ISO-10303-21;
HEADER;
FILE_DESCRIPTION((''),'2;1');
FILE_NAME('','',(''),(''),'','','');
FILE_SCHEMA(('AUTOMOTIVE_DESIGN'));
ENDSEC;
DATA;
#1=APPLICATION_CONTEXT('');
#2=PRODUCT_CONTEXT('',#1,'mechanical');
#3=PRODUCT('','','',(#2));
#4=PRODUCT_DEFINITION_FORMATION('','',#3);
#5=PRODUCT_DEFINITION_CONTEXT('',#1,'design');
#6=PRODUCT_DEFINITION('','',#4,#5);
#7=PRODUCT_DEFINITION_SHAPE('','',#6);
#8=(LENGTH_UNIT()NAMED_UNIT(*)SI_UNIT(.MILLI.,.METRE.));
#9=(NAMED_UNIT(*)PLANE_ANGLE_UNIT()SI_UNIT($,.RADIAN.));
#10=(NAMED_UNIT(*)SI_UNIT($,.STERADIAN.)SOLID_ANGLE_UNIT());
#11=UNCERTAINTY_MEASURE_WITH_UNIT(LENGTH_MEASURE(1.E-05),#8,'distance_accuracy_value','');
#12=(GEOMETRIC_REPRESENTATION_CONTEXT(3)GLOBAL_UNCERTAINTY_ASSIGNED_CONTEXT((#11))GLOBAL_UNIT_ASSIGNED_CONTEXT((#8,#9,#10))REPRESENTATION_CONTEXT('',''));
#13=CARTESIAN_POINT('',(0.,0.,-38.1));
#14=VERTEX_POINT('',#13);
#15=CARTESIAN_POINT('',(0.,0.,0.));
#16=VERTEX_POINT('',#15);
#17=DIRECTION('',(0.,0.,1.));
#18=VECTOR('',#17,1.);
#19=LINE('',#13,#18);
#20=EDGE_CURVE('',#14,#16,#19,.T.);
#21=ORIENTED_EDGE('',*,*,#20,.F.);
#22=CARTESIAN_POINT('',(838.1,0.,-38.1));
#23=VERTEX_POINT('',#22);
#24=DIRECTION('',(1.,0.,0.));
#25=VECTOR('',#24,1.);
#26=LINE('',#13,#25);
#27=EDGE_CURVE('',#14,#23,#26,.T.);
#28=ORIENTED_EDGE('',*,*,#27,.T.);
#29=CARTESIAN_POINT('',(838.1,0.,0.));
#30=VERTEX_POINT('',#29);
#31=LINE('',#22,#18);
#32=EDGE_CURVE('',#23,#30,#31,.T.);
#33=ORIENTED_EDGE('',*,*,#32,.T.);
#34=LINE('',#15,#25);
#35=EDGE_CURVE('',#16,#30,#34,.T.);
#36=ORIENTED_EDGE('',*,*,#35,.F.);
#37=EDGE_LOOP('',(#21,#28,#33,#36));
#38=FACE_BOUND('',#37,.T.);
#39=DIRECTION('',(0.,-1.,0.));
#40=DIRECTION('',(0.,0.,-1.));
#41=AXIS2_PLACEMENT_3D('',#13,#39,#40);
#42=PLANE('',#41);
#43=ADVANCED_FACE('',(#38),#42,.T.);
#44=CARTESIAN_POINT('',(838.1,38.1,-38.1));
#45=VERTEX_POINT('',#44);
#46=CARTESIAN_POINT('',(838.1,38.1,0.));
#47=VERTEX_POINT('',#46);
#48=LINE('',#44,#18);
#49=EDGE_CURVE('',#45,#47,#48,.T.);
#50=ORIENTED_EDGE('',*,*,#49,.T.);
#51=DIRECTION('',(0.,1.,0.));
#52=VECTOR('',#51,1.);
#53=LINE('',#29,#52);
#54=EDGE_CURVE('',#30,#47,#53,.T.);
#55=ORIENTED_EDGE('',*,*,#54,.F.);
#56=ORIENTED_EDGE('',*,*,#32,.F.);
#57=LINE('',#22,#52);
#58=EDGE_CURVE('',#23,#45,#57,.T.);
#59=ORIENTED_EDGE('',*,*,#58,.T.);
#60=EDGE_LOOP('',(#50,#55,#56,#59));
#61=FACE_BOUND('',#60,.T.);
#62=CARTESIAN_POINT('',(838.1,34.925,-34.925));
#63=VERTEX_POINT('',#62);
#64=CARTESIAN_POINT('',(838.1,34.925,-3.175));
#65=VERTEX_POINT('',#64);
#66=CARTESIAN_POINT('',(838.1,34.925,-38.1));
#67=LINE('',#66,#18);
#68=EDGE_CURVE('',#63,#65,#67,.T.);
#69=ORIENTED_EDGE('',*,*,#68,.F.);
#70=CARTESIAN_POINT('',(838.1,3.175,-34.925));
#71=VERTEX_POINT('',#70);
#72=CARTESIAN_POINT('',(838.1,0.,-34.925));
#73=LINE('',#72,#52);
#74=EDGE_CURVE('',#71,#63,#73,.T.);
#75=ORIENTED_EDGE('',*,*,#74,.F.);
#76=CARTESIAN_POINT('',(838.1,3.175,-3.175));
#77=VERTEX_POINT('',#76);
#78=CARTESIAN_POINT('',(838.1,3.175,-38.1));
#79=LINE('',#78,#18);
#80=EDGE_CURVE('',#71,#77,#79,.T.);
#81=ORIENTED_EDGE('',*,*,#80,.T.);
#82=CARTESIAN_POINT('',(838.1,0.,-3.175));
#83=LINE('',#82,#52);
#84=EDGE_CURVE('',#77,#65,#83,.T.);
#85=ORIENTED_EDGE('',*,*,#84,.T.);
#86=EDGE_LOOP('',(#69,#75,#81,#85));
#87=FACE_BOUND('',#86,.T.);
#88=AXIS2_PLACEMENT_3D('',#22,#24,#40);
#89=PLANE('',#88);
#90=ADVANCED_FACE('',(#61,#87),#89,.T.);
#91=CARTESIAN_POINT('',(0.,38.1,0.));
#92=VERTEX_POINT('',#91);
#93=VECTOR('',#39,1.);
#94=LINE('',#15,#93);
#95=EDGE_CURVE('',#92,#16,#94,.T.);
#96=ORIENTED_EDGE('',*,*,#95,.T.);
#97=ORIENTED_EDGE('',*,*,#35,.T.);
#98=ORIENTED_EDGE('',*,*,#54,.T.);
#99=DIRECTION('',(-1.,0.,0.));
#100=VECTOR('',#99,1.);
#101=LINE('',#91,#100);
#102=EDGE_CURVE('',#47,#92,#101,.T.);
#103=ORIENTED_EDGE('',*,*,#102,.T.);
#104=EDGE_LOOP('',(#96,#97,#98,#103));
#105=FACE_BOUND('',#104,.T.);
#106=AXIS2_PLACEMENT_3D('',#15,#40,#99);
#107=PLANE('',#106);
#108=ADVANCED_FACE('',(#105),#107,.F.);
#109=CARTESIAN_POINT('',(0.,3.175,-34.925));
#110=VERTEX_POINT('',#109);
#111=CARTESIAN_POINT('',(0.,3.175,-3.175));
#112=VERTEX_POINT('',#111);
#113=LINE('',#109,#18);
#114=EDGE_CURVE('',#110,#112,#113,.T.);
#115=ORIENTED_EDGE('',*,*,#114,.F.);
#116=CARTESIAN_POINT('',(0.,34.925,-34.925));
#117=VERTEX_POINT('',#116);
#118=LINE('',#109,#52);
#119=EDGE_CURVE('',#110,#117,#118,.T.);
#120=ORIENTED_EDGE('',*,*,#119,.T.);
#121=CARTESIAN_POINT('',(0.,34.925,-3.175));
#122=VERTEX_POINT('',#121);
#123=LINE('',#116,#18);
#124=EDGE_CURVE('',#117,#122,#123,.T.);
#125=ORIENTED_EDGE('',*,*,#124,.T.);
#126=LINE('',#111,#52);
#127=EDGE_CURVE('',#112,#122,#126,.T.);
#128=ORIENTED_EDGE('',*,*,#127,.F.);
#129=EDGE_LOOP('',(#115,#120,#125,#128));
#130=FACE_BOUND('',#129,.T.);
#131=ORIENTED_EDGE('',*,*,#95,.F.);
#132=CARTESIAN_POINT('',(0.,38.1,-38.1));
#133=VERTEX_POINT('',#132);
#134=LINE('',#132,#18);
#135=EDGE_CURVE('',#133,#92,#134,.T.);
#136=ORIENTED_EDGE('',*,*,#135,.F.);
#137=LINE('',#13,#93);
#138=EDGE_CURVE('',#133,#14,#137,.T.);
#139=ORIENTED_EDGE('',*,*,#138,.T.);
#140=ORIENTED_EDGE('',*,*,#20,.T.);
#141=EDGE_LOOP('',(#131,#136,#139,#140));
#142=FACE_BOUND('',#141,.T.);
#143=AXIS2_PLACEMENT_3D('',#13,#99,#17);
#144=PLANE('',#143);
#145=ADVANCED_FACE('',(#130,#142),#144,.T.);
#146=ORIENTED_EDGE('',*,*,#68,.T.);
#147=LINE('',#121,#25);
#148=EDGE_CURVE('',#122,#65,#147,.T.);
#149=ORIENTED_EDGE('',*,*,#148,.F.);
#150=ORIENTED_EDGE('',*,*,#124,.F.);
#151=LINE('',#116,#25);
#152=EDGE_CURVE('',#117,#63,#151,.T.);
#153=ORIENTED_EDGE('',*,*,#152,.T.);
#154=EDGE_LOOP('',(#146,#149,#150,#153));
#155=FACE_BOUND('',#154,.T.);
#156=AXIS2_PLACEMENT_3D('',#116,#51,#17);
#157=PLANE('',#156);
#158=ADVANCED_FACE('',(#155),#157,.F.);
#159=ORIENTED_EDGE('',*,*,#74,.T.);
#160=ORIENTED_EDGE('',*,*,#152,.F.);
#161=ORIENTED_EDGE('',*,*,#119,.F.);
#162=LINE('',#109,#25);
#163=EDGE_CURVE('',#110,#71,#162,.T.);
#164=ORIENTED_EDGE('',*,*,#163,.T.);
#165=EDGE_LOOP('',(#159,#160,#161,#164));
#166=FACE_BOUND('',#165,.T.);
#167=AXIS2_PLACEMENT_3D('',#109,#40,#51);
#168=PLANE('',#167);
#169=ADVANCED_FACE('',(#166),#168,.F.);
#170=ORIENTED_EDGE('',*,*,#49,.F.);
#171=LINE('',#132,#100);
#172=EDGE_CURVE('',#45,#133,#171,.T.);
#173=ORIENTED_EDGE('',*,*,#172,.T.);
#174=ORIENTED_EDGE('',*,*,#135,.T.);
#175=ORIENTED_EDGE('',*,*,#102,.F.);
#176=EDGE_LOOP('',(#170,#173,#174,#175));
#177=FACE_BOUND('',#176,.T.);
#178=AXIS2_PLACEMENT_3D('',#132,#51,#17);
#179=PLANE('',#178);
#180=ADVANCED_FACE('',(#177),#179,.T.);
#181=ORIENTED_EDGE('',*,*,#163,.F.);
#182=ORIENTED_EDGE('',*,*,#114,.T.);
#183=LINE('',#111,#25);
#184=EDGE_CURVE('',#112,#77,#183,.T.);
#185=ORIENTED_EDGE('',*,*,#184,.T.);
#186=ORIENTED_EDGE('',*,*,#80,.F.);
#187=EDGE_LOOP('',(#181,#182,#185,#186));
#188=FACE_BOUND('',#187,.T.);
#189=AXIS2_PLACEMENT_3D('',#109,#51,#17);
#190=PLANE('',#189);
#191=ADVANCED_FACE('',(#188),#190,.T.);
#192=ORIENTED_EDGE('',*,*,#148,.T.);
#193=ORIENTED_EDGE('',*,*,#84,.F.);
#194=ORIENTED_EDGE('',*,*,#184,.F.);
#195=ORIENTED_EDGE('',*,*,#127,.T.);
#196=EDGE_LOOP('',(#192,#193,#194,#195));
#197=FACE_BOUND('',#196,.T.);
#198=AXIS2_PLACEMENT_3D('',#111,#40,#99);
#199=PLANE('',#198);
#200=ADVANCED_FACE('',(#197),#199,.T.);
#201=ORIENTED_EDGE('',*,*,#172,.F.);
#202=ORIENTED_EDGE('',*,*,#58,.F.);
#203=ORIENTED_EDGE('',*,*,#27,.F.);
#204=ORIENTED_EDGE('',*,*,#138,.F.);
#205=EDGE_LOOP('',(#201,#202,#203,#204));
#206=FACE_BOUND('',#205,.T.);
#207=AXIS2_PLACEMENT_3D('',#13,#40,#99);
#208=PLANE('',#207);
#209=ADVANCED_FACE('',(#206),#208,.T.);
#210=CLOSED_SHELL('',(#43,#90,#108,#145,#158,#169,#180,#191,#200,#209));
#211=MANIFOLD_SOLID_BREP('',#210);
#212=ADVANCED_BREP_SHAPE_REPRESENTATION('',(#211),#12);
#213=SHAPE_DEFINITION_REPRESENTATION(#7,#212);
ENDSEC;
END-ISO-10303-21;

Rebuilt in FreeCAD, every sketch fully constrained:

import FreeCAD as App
import Part
import Sketcher
from FreeCAD import Vector

doc = App.newDocument("Part")
params = doc.addObject("Spreadsheet::Sheet", "Params")
for row, (alias, value) in enumerate([
    ("sketch1_width", "838.1 mm"),
    ("sketch1_height", "38.1 mm"),
    ("pad1_length", "38.1 mm"),
    ("sketch2_width", "31.75 mm"),
], start=1):
    params.set(f"A{row}", alias)
    params.set(f"B{row}", "=" + value)
    params.setAlias(f"B{row}", alias)

body = doc.addObject("PartDesign::Body", "Body")

sketch1 = body.newObject("Sketcher::SketchObject", "Sketch")
sketch1.AttachmentSupport = (doc.getObject("XY_Plane"), [""])
sketch1.MapMode = "FlatFace"
sketch1.addGeometry([
    Part.LineSegment(Vector(0, 38, 0), Vector(0, 0, 0)),
    Part.LineSegment(Vector(0, 0, 0), Vector(838, 0, 0)),
    Part.LineSegment(Vector(838, 0, 0), Vector(838, 38, 0)),
    Part.LineSegment(Vector(838, 38, 0), Vector(0, 38, 0)),
], False)
sketch1.addConstraint([
    Sketcher.Constraint("Coincident", 0, 2, 1, 1),
    Sketcher.Constraint("Coincident", 1, 2, 2, 1),
    Sketcher.Constraint("Coincident", 2, 2, 3, 1),
    Sketcher.Constraint("Coincident", 3, 2, 0, 1),
    Sketcher.Constraint("Vertical", 0),
    Sketcher.Constraint("Horizontal", 1),
    Sketcher.Constraint("Vertical", 2),
    Sketcher.Constraint("Horizontal", 3),
    Sketcher.Constraint("Coincident", 0, 2, -1, 1),
    Sketcher.Constraint("DistanceX", 1, 1, 1, 2, 838.1),
    Sketcher.Constraint("DistanceY", 0, 2, 0, 1, 38.1),
])
sketch1.setExpression("Constraints[9]", "Params.sketch1_width")
sketch1.setExpression("Constraints[10]", "Params.sketch1_height")
pad1 = body.newObject("PartDesign::Pad", "Pad")
pad1.Profile = sketch1
pad1.setExpression("Length", "Params.pad1_length")
pad1.Reversed = True

sketch2 = body.newObject("Sketcher::SketchObject", "Sketch001")
sketch2.AttachmentSupport = (doc.getObject("YZ_Plane"), [""])
sketch2.MapMode = "FlatFace"
sketch2.AttachmentOffset = App.Placement(Vector(0, 0, 838.1), App.Rotation())
sketch2.addGeometry([
    Part.LineSegment(Vector(35, -3, 0), Vector(3, -3, 0)),
    Part.LineSegment(Vector(3, -3, 0), Vector(3, -35, 0)),
    Part.LineSegment(Vector(3, -35, 0), Vector(35, -35, 0)),
    Part.LineSegment(Vector(35, -35, 0), Vector(35, -3, 0)),
], False)
sketch2.addConstraint([
    Sketcher.Constraint("Coincident", 0, 2, 1, 1),
    Sketcher.Constraint("Coincident", 1, 2, 2, 1),
    Sketcher.Constraint("Coincident", 2, 2, 3, 1),
    Sketcher.Constraint("Coincident", 3, 2, 0, 1),
    Sketcher.Constraint("Horizontal", 0),
    Sketcher.Constraint("Vertical", 1),
    Sketcher.Constraint("Horizontal", 2),
    Sketcher.Constraint("Vertical", 3),
    Sketcher.Constraint("Equal", 2, 1),
    Sketcher.Constraint("DistanceX", 0, 2, 0, 1, 31.75),
    Sketcher.Constraint("DistanceX", -1, 1, 0, 2, 3.175),
    Sketcher.Constraint("DistanceY", 0, 2, -1, 1, 3.175),
])
sketch2.setExpression("Constraints[9]", "Params.sketch2_width")
pocket1 = body.newObject("PartDesign::Pocket", "Pocket")
pocket1.Profile = sketch2
pocket1.Type = "ThroughAll"
pocket1.Midplane = True

doc.recompute()
